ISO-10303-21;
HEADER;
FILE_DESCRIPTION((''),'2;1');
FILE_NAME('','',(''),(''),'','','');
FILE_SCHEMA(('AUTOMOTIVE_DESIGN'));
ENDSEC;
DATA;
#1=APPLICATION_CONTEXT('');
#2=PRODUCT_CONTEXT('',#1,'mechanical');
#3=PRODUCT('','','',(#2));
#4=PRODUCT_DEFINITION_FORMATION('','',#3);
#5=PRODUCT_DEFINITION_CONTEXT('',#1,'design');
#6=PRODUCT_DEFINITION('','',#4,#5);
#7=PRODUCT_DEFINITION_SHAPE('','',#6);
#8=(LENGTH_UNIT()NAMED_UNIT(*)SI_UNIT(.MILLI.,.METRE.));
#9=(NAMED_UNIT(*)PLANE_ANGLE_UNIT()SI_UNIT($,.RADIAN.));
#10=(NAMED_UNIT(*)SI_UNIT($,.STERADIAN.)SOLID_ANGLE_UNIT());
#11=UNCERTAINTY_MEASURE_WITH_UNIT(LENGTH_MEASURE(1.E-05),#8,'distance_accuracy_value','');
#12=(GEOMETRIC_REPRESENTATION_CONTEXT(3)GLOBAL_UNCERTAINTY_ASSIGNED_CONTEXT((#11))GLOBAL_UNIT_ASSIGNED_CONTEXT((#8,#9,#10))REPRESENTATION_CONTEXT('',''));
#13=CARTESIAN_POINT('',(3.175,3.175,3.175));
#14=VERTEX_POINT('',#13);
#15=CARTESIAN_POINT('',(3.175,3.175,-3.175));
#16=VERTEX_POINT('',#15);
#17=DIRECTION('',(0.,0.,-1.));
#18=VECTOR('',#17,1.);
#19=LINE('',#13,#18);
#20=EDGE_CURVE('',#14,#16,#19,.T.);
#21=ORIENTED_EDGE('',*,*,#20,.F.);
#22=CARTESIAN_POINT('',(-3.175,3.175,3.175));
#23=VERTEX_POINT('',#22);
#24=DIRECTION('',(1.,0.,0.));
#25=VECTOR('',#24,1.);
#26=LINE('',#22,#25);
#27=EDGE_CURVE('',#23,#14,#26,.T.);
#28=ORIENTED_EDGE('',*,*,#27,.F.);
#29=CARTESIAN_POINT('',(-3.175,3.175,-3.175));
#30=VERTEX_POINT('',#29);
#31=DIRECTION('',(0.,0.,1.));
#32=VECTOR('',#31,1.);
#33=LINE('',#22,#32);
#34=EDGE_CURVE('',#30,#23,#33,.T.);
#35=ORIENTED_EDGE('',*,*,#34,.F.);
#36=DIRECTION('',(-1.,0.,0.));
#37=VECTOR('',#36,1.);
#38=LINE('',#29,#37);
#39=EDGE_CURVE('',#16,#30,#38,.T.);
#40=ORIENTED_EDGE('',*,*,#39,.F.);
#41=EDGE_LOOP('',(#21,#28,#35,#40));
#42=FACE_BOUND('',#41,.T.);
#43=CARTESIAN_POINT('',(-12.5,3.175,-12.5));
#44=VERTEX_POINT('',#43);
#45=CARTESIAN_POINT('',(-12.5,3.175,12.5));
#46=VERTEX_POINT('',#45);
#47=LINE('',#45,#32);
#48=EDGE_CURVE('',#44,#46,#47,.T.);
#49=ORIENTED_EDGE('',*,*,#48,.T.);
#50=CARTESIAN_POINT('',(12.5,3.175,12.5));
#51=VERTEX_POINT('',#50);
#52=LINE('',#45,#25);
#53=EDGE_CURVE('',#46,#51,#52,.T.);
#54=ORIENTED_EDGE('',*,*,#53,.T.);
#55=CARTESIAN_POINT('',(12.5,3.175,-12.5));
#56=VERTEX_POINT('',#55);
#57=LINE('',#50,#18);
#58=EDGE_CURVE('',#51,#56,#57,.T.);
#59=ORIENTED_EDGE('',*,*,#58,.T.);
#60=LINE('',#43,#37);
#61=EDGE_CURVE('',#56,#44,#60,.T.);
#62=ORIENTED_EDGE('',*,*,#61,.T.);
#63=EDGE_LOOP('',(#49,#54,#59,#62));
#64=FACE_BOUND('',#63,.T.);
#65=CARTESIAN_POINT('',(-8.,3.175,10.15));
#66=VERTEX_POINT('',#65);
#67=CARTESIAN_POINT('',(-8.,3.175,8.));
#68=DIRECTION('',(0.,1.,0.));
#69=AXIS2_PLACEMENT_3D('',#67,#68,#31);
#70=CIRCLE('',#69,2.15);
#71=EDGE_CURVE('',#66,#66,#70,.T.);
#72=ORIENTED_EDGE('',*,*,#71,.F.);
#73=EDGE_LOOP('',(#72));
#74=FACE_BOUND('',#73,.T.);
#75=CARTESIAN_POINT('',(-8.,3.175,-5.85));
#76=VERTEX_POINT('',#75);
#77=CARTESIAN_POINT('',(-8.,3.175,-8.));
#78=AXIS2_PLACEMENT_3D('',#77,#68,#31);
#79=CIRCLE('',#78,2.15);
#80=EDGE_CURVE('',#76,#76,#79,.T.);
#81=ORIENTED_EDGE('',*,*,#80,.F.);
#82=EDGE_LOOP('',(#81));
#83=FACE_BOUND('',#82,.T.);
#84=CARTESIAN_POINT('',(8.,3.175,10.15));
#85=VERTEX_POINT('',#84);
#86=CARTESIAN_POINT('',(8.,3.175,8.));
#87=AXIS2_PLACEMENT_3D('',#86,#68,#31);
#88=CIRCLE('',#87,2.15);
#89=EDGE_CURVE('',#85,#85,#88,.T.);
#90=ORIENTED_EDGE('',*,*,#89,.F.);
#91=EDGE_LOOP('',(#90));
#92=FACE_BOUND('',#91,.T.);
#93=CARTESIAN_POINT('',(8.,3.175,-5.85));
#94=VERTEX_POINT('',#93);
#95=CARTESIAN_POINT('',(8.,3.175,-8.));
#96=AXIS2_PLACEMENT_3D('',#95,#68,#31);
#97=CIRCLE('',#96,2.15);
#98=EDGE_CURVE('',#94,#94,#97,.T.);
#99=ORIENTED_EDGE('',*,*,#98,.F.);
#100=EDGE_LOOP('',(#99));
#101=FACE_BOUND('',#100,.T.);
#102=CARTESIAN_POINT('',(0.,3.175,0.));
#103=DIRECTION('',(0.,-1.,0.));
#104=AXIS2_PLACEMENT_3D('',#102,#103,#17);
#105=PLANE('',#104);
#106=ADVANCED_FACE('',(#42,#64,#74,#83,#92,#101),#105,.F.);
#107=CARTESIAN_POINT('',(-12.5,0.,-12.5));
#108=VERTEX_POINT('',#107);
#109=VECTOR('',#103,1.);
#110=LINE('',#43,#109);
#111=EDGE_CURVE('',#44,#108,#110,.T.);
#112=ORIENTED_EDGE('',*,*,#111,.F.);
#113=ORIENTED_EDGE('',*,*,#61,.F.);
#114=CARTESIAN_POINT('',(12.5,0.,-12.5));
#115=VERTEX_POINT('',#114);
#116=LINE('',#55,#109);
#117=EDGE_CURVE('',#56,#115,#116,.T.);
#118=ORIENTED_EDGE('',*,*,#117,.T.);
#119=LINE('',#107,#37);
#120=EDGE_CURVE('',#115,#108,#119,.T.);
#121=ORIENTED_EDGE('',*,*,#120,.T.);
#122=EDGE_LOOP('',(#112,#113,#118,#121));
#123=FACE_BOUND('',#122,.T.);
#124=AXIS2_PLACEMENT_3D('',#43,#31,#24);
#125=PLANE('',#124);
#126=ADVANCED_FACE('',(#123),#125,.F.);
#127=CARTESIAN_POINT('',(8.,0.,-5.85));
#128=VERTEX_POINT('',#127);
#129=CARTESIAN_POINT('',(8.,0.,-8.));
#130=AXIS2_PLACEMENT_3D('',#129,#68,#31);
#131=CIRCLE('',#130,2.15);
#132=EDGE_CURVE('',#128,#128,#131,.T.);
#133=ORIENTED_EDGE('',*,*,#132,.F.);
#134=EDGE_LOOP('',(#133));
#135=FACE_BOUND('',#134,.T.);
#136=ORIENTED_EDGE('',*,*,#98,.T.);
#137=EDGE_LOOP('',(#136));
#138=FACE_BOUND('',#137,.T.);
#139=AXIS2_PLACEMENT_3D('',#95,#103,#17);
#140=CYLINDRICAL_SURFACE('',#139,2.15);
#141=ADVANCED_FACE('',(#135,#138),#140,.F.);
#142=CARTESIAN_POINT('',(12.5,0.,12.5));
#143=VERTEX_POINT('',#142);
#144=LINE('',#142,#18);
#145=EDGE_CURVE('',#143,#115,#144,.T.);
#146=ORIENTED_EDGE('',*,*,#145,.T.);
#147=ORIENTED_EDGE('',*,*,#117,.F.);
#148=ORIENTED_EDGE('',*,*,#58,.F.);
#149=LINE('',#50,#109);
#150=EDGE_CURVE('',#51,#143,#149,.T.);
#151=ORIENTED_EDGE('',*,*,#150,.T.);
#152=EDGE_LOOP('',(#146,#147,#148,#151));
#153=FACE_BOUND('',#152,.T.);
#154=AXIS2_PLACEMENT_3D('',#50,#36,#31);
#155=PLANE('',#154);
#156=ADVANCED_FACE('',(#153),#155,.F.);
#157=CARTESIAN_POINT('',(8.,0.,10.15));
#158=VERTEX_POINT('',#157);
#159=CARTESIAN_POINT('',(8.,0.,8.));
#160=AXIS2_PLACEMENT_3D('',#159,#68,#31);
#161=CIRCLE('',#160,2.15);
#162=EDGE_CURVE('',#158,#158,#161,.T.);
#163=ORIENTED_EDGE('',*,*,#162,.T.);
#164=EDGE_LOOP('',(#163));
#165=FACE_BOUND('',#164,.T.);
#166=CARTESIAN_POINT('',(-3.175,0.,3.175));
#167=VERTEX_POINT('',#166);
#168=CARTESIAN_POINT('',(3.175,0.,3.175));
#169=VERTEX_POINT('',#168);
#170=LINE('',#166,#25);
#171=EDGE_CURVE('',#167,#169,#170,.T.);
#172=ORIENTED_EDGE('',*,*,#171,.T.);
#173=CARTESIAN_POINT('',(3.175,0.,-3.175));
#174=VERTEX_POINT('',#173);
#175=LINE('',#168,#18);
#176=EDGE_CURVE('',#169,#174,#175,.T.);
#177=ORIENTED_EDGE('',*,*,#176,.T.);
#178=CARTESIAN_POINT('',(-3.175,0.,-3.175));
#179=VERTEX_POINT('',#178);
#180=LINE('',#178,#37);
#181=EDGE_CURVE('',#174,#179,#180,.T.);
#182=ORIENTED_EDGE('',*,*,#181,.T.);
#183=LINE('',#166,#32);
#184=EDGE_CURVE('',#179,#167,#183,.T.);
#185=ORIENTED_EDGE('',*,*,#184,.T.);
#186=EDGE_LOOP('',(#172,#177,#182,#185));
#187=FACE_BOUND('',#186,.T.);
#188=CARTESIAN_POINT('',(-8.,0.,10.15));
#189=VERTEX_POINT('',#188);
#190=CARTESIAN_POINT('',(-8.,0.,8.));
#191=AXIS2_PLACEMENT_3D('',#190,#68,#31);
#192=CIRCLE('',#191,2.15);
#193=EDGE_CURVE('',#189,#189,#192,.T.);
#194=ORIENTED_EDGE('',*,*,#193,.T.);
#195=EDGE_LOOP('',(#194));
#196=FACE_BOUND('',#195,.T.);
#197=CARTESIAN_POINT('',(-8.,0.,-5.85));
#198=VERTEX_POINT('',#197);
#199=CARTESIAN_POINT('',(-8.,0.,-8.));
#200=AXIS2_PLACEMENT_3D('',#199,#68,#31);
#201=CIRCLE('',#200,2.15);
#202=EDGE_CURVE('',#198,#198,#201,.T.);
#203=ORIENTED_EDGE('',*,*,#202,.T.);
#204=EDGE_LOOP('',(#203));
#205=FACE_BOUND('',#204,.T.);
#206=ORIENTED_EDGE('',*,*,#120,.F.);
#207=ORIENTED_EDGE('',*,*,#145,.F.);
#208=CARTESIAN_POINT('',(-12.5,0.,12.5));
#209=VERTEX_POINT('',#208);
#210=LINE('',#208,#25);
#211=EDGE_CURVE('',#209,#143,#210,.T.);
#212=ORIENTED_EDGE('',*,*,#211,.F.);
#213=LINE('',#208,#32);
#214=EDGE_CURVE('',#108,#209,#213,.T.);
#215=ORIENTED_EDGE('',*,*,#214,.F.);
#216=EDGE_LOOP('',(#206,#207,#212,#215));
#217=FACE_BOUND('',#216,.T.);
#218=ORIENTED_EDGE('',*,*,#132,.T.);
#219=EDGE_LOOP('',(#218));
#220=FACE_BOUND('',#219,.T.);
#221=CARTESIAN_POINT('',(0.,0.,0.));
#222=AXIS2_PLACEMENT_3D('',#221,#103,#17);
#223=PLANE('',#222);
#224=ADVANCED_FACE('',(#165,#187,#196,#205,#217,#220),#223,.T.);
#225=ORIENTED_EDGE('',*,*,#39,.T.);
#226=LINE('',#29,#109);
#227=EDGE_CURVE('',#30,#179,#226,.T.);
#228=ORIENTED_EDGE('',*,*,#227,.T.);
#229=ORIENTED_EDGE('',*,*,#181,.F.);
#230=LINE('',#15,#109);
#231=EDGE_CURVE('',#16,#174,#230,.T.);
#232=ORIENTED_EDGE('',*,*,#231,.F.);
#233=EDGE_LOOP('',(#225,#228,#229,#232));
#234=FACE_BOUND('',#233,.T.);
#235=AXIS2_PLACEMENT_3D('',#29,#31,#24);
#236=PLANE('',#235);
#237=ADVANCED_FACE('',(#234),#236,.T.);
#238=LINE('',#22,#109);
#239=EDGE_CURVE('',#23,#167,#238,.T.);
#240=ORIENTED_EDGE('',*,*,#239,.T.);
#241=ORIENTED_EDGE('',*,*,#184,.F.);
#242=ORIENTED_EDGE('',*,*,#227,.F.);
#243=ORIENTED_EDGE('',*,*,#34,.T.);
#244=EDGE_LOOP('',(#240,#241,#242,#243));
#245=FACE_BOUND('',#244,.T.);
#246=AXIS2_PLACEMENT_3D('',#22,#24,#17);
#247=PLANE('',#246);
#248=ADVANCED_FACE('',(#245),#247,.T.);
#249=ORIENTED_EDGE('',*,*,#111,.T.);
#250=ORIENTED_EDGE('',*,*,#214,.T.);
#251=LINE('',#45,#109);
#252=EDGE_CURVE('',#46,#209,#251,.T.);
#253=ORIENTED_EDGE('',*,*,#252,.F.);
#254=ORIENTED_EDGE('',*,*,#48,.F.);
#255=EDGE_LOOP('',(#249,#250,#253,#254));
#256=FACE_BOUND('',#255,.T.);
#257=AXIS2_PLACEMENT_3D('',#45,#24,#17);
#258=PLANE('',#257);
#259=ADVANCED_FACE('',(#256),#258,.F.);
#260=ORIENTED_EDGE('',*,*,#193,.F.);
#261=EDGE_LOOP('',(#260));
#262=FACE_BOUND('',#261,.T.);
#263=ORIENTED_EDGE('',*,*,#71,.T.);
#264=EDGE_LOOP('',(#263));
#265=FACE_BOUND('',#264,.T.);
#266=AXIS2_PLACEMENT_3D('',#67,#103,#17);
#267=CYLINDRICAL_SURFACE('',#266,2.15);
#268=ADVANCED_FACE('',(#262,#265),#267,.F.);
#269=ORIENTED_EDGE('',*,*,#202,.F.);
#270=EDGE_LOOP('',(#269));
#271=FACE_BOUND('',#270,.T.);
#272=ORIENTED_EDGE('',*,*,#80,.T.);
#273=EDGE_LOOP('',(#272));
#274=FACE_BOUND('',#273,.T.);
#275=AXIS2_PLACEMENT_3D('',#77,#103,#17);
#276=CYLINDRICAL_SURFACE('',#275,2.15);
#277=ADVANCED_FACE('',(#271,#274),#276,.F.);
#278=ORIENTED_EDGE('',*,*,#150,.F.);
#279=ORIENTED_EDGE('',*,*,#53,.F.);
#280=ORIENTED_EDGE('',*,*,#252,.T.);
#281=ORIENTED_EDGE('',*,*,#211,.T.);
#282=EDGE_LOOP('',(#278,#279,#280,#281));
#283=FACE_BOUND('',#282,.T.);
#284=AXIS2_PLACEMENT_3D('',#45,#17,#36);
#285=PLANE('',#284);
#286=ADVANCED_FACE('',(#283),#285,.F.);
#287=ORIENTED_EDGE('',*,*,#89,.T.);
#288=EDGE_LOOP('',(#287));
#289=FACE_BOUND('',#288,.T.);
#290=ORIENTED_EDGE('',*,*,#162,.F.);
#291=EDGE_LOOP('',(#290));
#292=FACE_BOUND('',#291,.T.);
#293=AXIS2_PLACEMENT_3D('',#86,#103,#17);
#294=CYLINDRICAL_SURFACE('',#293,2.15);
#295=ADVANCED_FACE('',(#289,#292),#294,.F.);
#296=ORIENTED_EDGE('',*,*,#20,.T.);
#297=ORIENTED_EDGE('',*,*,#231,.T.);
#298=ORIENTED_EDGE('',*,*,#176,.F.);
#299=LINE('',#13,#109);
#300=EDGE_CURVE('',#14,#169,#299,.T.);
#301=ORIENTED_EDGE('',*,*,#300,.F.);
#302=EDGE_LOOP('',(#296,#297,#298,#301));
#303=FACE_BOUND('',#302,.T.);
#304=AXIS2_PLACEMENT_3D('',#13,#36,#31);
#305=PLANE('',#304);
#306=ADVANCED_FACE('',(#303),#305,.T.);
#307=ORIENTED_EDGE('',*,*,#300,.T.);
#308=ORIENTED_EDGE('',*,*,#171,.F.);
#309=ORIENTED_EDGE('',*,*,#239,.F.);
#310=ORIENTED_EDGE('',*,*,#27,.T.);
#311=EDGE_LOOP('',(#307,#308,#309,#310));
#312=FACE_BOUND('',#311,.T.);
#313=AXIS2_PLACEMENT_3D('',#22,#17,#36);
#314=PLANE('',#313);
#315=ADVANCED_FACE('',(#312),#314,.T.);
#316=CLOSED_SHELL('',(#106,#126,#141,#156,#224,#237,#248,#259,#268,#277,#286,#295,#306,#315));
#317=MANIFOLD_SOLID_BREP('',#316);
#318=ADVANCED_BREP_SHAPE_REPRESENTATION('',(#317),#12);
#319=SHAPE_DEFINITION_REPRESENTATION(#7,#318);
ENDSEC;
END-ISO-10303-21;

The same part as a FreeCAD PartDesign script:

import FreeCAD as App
import Part
import Sketcher
Q = App.Units.Quantity


def add_polygon(sketch, points):
    """Adds a closed chain of lines whose ends are joined by coincident constraints."""
    first, n = sketch.GeometryCount, len(points)
    for a, b in zip(points, points[1:] + points[:1]):
        sketch.addGeometry(Part.LineSegment(App.Vector(*a, 0), App.Vector(*b, 0)), False)
    for i in range(n):
        sketch.addConstraint(Sketcher.Constraint("Coincident", first + i, 2, first + (i + 1) % n, 1))

doc = App.newDocument("Part")
body = doc.addObject("PartDesign::Body", "Body")

sketch1 = body.newObject("Sketcher::SketchObject", "Sketch")
sketch1.AttachmentSupport = (doc.getObject("XZ_Plane"), [""])
sketch1.MapMode = "FlatFace"
add_polygon(sketch1, [(-12.5, -12.5), (-12.5, 12.5), (12.5, 12.5), (12.5, -12.5)])
sketch1.addGeometry(Part.Circle(App.Vector(-8, 8, 0), App.Vector(0, 0, 1), 2.1), False)
add_polygon(sketch1, [(3.2, 3.2), (-3.2, 3.2), (-3.2, -3.2), (3.2, -3.2)])
sketch1.addGeometry(Part.Circle(App.Vector(8, 8, 0), App.Vector(0, 0, 1), 2.1), False)
sketch1.addGeometry(Part.Circle(App.Vector(-8, -8, 0), App.Vector(0, 0, 1), 2.1), False)
sketch1.addGeometry(Part.Circle(App.Vector(8, -8, 0), App.Vector(0, 0, 1), 2.1), False)
sketch1.addConstraint([
    Sketcher.Constraint("Vertical", 0),
    Sketcher.Constraint("Horizontal", 1),
    Sketcher.Constraint("Vertical", 2),
    Sketcher.Constraint("Horizontal", 3),
    Sketcher.Constraint("Horizontal", 5),
    Sketcher.Constraint("Vertical", 6),
    Sketcher.Constraint("Horizontal", 7),
    Sketcher.Constraint("Vertical", 8),
    Sketcher.Constraint("Equal", 4, 9),
    Sketcher.Constraint("Equal", 9, 10),
    Sketcher.Constraint("Equal", 10, 11),
    Sketcher.Constraint("Symmetric", 9, 3, 10, 3, -1, 1),
    Sketcher.Constraint("Symmetric", 4, 3, 11, 3, -1, 1),
    Sketcher.Constraint("Symmetric", 0, 2, 2, 2, -1, 1),
    Sketcher.Constraint("Symmetric", 5, 2, 7, 2, -1, 1),
    Sketcher.Constraint("Symmetric", 4, 3, 9, 3, -2),
    Sketcher.Constraint("Equal", 3, 0),
    Sketcher.Constraint("Equal", 7, 6),
    Sketcher.Constraint("Diameter", 4, Q("4.3 mm")),
    Sketcher.Constraint("DistanceX", 1, 1, 1, 2, Q("25 mm")),
    Sketcher.Constraint("DistanceX", 4, 3, -1, 1, Q("8 mm")),
    Sketcher.Constraint("DistanceY", -1, 1, 4, 3, Q("8 mm")),
    Sketcher.Constraint("DistanceX", 5, 2, 5, 1, Q("6.35 mm")),
])
pad1 = body.newObject("PartDesign::Pad", "Pad")
pad1.Profile = sketch1
pad1.Length = 3.175
pad1.Reversed = True

doc.recompute()
